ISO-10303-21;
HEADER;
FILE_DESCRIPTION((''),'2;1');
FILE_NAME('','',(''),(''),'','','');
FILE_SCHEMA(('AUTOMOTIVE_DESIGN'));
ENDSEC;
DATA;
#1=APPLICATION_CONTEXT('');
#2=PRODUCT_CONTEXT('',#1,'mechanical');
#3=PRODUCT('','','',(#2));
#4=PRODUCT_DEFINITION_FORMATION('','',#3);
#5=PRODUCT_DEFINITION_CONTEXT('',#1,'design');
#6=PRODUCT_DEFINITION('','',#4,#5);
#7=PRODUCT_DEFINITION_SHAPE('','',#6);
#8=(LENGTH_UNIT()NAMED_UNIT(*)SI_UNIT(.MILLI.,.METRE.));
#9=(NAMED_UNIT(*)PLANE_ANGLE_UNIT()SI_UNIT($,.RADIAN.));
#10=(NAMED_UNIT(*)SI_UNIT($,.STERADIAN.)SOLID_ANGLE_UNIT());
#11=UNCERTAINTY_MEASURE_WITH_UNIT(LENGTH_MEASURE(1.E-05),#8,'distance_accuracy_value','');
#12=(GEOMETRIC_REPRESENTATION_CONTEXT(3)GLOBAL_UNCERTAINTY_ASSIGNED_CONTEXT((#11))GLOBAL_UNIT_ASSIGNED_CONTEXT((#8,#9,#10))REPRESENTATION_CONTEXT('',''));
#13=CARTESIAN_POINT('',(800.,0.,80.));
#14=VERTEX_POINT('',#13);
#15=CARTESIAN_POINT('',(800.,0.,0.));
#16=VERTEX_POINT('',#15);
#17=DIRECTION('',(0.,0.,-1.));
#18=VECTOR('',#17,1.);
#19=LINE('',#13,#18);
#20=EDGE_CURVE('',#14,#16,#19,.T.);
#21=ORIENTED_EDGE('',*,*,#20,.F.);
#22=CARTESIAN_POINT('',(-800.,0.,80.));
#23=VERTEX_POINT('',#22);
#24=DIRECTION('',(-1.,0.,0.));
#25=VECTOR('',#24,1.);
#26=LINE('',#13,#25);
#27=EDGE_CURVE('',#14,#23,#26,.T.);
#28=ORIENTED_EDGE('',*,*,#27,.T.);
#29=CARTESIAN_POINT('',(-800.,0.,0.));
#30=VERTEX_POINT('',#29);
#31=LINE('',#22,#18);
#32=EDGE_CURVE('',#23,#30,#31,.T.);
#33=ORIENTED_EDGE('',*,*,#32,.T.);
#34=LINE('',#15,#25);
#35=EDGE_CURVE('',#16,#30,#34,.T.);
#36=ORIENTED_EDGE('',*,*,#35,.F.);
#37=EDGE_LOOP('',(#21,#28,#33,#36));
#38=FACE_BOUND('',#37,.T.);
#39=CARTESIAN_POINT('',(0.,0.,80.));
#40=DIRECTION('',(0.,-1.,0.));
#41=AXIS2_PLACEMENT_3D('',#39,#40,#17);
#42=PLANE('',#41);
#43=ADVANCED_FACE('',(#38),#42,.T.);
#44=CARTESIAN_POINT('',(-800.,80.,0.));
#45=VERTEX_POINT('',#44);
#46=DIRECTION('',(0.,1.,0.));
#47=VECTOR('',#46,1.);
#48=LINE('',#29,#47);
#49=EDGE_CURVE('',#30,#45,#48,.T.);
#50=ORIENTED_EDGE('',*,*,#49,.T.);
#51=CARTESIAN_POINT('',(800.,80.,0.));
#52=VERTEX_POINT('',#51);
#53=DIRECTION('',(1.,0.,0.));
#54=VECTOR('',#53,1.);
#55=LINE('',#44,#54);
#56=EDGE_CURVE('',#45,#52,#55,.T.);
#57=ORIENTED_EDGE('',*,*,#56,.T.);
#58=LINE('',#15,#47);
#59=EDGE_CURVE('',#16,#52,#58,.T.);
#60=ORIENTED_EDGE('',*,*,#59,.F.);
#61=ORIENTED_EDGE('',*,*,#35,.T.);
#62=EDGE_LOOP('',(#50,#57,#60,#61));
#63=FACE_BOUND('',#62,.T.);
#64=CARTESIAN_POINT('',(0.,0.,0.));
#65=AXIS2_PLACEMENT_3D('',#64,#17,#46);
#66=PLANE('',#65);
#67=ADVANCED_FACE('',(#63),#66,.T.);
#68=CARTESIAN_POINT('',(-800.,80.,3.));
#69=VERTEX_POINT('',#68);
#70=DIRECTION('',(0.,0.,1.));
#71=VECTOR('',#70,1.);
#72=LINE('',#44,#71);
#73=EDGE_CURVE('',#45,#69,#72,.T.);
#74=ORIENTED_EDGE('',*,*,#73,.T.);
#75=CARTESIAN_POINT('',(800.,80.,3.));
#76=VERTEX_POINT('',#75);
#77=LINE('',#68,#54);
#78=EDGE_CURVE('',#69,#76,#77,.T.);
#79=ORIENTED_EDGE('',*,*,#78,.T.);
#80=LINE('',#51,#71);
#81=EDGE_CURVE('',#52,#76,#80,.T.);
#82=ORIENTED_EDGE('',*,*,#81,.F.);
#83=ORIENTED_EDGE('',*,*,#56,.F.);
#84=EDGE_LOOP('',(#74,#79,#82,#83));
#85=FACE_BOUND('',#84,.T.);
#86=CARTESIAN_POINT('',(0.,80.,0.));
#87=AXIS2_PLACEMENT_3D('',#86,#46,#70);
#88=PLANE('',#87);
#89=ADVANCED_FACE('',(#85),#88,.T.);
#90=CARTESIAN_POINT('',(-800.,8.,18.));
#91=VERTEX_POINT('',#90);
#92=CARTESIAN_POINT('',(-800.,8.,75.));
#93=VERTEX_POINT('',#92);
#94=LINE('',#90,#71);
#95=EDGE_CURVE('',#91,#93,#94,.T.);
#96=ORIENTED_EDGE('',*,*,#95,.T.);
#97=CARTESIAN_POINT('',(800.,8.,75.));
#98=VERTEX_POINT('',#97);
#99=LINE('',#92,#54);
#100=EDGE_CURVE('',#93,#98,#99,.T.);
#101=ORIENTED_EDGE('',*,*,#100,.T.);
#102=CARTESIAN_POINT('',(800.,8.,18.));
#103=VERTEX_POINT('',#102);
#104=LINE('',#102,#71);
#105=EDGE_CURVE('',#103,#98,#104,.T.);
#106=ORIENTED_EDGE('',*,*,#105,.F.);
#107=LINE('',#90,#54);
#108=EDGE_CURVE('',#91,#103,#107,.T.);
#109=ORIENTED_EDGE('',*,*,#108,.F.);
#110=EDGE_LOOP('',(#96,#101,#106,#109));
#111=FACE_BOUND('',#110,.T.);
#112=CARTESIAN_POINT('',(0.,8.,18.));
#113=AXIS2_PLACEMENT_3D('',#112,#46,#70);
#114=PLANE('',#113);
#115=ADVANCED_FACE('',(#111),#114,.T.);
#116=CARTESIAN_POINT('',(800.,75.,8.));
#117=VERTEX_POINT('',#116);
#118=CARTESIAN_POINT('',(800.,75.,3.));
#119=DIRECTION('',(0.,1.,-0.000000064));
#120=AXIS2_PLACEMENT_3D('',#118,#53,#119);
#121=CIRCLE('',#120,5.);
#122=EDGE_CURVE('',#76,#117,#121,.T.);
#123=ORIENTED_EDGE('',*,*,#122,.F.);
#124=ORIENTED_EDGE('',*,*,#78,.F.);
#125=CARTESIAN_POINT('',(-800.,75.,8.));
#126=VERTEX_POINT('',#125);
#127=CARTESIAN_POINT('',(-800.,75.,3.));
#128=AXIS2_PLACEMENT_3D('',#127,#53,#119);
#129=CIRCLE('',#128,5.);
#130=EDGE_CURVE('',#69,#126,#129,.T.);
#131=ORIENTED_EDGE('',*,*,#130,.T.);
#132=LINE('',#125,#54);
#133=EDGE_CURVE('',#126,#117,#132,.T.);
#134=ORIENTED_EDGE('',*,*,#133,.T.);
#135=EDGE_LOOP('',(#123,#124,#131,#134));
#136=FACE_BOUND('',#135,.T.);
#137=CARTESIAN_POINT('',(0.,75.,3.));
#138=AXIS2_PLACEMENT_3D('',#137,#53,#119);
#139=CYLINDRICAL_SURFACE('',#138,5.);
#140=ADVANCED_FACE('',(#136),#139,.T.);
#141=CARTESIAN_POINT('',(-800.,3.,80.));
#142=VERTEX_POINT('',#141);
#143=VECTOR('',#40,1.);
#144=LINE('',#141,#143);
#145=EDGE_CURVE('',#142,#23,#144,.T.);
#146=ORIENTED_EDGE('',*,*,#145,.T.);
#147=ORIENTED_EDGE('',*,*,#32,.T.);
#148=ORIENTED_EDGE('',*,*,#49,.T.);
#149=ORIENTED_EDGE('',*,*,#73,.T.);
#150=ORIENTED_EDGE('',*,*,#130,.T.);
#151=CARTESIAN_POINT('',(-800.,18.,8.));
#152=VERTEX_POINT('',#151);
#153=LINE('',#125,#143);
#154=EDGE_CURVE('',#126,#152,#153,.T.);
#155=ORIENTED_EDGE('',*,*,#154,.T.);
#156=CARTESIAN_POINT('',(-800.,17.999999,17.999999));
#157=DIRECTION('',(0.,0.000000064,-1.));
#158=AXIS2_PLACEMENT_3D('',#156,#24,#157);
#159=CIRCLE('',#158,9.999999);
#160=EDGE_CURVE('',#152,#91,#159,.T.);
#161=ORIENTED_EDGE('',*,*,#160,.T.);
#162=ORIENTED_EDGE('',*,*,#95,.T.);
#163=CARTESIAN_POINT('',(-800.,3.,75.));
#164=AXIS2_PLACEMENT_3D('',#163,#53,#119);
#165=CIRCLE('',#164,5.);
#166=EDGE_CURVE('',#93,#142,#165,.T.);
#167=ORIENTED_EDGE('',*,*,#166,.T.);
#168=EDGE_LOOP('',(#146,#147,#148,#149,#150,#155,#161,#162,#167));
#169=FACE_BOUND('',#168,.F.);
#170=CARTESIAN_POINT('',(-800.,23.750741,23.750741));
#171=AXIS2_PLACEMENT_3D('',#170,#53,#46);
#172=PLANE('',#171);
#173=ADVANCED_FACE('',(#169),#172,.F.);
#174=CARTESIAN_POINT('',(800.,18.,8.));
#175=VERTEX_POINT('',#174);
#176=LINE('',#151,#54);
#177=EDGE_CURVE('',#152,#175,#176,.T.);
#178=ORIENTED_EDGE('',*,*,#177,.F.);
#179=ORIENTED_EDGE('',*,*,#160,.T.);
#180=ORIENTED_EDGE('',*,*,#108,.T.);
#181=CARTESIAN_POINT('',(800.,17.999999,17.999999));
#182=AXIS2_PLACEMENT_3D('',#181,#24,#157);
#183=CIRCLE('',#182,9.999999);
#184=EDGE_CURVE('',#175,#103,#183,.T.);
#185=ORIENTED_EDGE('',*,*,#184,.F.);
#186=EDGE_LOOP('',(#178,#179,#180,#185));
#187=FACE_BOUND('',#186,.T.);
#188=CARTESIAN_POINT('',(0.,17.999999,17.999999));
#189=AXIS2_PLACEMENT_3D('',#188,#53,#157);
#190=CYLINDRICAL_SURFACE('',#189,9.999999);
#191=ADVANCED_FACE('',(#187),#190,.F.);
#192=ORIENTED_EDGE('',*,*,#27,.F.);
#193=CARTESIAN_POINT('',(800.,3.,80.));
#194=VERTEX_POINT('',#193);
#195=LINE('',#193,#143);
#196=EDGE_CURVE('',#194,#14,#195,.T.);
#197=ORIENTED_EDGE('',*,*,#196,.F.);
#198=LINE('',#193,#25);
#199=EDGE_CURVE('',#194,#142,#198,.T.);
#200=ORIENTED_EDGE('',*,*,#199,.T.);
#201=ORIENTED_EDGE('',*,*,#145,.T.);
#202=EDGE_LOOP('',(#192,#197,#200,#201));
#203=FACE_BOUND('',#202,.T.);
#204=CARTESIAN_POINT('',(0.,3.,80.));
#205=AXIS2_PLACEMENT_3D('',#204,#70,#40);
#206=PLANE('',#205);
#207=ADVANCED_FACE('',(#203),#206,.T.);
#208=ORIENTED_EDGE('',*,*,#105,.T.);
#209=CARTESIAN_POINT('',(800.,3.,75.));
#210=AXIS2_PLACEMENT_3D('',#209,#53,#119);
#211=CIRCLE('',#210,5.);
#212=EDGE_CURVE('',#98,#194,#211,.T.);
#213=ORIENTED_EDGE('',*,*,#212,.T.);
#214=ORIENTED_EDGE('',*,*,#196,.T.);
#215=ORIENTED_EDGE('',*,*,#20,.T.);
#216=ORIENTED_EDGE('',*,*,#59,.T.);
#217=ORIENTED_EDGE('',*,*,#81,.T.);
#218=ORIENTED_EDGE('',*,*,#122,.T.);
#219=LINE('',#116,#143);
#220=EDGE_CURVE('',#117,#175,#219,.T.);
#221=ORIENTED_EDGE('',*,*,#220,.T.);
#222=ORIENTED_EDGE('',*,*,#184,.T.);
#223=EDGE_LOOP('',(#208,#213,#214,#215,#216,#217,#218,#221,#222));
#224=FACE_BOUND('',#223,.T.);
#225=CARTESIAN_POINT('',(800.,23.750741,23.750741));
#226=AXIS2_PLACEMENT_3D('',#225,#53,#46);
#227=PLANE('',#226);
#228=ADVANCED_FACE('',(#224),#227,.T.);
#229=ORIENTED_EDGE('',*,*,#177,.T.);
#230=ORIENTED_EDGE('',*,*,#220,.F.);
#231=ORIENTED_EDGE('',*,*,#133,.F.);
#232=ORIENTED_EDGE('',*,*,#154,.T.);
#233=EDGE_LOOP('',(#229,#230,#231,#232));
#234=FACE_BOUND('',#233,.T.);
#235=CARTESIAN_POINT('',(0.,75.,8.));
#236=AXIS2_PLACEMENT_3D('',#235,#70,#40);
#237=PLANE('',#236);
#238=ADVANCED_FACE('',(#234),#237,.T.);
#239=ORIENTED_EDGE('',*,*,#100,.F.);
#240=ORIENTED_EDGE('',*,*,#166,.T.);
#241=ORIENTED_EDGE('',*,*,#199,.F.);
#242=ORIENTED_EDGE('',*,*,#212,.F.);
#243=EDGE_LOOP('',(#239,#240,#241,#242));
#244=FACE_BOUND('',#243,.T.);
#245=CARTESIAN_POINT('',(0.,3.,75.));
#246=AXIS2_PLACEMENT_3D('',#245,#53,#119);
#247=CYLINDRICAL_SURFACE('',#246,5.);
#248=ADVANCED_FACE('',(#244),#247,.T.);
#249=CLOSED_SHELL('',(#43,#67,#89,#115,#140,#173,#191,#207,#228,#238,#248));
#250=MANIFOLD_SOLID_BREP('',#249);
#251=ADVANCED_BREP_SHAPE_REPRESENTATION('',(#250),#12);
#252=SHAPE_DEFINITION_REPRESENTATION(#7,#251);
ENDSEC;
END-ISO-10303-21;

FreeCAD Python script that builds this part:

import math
import FreeCAD as App
import Part
import Sketcher
Q = App.Units.Quantity

doc = App.newDocument("Part")
body = doc.addObject("PartDesign::Body", "Body")

# Sketch on YZ plane
sketch1 = body.newObject("Sketcher::SketchObject", "Sketch")
sketch1.AttachmentSupport = (doc.getObject("YZ_Plane"), [""])
sketch1.MapMode = "FlatFace"
sketch1.addGeometry([
    Part.LineSegment(App.Vector(0, 0, 0), App.Vector(80, 0, 0)),  # 0
    Part.LineSegment(App.Vector(80, 0, 0), App.Vector(80, 3, 0)),  # 1
    Part.ArcOfCircle(Part.Circle(App.Vector(75, 3, 0), App.Vector(0, 0, 1), 5), math.radians(0), math.radians(90)),  # 2
    Part.LineSegment(App.Vector(75, 8, 0), App.Vector(18, 8, 0)),  # 3
    Part.ArcOfCircle(Part.Circle(App.Vector(18, 18, 0), App.Vector(0, 0, 1), 10), math.radians(180), math.radians(270)),  # 4
    Part.LineSegment(App.Vector(8, 18, 0), App.Vector(8, 75, 0)),  # 5
    Part.ArcOfCircle(Part.Circle(App.Vector(3, 75, 0), App.Vector(0, 0, 1), 5), math.radians(0), math.radians(90)),  # 6
    Part.LineSegment(App.Vector(3, 80, 0), App.Vector(0, 80, 0)),  # 7
    Part.LineSegment(App.Vector(0, 80, 0), App.Vector(0, 0, 0)),  # 8
], False)
sketch1.addConstraint([
    Sketcher.Constraint("Coincident", 0, 2, 1, 1),
    Sketcher.Constraint("Tangent", 1, 2, 2, 1),
    Sketcher.Constraint("Tangent", 2, 2, 3, 1),
    Sketcher.Constraint("Tangent", 3, 2, 4, 2),
    Sketcher.Constraint("Tangent", 4, 1, 5, 1),
    Sketcher.Constraint("Tangent", 5, 2, 6, 1),
    Sketcher.Constraint("Tangent", 6, 2, 7, 1),
    Sketcher.Constraint("Coincident", 7, 2, 8, 1),
    Sketcher.Constraint("Coincident", 8, 2, 0, 1),
    Sketcher.Constraint("Horizontal", 0),
    Sketcher.Constraint("Vertical", 1),
    Sketcher.Constraint("Horizontal", 3),
    Sketcher.Constraint("Vertical", 5),
    Sketcher.Constraint("Horizontal", 7),
    Sketcher.Constraint("Vertical", 8),
    Sketcher.Constraint("Coincident", 8, 2, -1, 1),
    Sketcher.Constraint("Equal", 2, 6),
    Sketcher.Constraint("Equal", 7, 1),
    Sketcher.Constraint("Equal", 3, 5),
    Sketcher.Constraint("Radius", 2, Q("5 mm")),
    Sketcher.Constraint("Radius", 4, Q("9.999999 mm")),
    Sketcher.Constraint("DistanceX", 0, 1, 0, 2, Q("80 mm")),
    Sketcher.Constraint("DistanceX", 3, 2, 3, 1, Q("57 mm")),
])
pad1 = body.newObject("PartDesign::Pad", "Pad")
pad1.Profile = sketch1
pad1.Length = 1600
pad1.Midplane = True

doc.recompute()
